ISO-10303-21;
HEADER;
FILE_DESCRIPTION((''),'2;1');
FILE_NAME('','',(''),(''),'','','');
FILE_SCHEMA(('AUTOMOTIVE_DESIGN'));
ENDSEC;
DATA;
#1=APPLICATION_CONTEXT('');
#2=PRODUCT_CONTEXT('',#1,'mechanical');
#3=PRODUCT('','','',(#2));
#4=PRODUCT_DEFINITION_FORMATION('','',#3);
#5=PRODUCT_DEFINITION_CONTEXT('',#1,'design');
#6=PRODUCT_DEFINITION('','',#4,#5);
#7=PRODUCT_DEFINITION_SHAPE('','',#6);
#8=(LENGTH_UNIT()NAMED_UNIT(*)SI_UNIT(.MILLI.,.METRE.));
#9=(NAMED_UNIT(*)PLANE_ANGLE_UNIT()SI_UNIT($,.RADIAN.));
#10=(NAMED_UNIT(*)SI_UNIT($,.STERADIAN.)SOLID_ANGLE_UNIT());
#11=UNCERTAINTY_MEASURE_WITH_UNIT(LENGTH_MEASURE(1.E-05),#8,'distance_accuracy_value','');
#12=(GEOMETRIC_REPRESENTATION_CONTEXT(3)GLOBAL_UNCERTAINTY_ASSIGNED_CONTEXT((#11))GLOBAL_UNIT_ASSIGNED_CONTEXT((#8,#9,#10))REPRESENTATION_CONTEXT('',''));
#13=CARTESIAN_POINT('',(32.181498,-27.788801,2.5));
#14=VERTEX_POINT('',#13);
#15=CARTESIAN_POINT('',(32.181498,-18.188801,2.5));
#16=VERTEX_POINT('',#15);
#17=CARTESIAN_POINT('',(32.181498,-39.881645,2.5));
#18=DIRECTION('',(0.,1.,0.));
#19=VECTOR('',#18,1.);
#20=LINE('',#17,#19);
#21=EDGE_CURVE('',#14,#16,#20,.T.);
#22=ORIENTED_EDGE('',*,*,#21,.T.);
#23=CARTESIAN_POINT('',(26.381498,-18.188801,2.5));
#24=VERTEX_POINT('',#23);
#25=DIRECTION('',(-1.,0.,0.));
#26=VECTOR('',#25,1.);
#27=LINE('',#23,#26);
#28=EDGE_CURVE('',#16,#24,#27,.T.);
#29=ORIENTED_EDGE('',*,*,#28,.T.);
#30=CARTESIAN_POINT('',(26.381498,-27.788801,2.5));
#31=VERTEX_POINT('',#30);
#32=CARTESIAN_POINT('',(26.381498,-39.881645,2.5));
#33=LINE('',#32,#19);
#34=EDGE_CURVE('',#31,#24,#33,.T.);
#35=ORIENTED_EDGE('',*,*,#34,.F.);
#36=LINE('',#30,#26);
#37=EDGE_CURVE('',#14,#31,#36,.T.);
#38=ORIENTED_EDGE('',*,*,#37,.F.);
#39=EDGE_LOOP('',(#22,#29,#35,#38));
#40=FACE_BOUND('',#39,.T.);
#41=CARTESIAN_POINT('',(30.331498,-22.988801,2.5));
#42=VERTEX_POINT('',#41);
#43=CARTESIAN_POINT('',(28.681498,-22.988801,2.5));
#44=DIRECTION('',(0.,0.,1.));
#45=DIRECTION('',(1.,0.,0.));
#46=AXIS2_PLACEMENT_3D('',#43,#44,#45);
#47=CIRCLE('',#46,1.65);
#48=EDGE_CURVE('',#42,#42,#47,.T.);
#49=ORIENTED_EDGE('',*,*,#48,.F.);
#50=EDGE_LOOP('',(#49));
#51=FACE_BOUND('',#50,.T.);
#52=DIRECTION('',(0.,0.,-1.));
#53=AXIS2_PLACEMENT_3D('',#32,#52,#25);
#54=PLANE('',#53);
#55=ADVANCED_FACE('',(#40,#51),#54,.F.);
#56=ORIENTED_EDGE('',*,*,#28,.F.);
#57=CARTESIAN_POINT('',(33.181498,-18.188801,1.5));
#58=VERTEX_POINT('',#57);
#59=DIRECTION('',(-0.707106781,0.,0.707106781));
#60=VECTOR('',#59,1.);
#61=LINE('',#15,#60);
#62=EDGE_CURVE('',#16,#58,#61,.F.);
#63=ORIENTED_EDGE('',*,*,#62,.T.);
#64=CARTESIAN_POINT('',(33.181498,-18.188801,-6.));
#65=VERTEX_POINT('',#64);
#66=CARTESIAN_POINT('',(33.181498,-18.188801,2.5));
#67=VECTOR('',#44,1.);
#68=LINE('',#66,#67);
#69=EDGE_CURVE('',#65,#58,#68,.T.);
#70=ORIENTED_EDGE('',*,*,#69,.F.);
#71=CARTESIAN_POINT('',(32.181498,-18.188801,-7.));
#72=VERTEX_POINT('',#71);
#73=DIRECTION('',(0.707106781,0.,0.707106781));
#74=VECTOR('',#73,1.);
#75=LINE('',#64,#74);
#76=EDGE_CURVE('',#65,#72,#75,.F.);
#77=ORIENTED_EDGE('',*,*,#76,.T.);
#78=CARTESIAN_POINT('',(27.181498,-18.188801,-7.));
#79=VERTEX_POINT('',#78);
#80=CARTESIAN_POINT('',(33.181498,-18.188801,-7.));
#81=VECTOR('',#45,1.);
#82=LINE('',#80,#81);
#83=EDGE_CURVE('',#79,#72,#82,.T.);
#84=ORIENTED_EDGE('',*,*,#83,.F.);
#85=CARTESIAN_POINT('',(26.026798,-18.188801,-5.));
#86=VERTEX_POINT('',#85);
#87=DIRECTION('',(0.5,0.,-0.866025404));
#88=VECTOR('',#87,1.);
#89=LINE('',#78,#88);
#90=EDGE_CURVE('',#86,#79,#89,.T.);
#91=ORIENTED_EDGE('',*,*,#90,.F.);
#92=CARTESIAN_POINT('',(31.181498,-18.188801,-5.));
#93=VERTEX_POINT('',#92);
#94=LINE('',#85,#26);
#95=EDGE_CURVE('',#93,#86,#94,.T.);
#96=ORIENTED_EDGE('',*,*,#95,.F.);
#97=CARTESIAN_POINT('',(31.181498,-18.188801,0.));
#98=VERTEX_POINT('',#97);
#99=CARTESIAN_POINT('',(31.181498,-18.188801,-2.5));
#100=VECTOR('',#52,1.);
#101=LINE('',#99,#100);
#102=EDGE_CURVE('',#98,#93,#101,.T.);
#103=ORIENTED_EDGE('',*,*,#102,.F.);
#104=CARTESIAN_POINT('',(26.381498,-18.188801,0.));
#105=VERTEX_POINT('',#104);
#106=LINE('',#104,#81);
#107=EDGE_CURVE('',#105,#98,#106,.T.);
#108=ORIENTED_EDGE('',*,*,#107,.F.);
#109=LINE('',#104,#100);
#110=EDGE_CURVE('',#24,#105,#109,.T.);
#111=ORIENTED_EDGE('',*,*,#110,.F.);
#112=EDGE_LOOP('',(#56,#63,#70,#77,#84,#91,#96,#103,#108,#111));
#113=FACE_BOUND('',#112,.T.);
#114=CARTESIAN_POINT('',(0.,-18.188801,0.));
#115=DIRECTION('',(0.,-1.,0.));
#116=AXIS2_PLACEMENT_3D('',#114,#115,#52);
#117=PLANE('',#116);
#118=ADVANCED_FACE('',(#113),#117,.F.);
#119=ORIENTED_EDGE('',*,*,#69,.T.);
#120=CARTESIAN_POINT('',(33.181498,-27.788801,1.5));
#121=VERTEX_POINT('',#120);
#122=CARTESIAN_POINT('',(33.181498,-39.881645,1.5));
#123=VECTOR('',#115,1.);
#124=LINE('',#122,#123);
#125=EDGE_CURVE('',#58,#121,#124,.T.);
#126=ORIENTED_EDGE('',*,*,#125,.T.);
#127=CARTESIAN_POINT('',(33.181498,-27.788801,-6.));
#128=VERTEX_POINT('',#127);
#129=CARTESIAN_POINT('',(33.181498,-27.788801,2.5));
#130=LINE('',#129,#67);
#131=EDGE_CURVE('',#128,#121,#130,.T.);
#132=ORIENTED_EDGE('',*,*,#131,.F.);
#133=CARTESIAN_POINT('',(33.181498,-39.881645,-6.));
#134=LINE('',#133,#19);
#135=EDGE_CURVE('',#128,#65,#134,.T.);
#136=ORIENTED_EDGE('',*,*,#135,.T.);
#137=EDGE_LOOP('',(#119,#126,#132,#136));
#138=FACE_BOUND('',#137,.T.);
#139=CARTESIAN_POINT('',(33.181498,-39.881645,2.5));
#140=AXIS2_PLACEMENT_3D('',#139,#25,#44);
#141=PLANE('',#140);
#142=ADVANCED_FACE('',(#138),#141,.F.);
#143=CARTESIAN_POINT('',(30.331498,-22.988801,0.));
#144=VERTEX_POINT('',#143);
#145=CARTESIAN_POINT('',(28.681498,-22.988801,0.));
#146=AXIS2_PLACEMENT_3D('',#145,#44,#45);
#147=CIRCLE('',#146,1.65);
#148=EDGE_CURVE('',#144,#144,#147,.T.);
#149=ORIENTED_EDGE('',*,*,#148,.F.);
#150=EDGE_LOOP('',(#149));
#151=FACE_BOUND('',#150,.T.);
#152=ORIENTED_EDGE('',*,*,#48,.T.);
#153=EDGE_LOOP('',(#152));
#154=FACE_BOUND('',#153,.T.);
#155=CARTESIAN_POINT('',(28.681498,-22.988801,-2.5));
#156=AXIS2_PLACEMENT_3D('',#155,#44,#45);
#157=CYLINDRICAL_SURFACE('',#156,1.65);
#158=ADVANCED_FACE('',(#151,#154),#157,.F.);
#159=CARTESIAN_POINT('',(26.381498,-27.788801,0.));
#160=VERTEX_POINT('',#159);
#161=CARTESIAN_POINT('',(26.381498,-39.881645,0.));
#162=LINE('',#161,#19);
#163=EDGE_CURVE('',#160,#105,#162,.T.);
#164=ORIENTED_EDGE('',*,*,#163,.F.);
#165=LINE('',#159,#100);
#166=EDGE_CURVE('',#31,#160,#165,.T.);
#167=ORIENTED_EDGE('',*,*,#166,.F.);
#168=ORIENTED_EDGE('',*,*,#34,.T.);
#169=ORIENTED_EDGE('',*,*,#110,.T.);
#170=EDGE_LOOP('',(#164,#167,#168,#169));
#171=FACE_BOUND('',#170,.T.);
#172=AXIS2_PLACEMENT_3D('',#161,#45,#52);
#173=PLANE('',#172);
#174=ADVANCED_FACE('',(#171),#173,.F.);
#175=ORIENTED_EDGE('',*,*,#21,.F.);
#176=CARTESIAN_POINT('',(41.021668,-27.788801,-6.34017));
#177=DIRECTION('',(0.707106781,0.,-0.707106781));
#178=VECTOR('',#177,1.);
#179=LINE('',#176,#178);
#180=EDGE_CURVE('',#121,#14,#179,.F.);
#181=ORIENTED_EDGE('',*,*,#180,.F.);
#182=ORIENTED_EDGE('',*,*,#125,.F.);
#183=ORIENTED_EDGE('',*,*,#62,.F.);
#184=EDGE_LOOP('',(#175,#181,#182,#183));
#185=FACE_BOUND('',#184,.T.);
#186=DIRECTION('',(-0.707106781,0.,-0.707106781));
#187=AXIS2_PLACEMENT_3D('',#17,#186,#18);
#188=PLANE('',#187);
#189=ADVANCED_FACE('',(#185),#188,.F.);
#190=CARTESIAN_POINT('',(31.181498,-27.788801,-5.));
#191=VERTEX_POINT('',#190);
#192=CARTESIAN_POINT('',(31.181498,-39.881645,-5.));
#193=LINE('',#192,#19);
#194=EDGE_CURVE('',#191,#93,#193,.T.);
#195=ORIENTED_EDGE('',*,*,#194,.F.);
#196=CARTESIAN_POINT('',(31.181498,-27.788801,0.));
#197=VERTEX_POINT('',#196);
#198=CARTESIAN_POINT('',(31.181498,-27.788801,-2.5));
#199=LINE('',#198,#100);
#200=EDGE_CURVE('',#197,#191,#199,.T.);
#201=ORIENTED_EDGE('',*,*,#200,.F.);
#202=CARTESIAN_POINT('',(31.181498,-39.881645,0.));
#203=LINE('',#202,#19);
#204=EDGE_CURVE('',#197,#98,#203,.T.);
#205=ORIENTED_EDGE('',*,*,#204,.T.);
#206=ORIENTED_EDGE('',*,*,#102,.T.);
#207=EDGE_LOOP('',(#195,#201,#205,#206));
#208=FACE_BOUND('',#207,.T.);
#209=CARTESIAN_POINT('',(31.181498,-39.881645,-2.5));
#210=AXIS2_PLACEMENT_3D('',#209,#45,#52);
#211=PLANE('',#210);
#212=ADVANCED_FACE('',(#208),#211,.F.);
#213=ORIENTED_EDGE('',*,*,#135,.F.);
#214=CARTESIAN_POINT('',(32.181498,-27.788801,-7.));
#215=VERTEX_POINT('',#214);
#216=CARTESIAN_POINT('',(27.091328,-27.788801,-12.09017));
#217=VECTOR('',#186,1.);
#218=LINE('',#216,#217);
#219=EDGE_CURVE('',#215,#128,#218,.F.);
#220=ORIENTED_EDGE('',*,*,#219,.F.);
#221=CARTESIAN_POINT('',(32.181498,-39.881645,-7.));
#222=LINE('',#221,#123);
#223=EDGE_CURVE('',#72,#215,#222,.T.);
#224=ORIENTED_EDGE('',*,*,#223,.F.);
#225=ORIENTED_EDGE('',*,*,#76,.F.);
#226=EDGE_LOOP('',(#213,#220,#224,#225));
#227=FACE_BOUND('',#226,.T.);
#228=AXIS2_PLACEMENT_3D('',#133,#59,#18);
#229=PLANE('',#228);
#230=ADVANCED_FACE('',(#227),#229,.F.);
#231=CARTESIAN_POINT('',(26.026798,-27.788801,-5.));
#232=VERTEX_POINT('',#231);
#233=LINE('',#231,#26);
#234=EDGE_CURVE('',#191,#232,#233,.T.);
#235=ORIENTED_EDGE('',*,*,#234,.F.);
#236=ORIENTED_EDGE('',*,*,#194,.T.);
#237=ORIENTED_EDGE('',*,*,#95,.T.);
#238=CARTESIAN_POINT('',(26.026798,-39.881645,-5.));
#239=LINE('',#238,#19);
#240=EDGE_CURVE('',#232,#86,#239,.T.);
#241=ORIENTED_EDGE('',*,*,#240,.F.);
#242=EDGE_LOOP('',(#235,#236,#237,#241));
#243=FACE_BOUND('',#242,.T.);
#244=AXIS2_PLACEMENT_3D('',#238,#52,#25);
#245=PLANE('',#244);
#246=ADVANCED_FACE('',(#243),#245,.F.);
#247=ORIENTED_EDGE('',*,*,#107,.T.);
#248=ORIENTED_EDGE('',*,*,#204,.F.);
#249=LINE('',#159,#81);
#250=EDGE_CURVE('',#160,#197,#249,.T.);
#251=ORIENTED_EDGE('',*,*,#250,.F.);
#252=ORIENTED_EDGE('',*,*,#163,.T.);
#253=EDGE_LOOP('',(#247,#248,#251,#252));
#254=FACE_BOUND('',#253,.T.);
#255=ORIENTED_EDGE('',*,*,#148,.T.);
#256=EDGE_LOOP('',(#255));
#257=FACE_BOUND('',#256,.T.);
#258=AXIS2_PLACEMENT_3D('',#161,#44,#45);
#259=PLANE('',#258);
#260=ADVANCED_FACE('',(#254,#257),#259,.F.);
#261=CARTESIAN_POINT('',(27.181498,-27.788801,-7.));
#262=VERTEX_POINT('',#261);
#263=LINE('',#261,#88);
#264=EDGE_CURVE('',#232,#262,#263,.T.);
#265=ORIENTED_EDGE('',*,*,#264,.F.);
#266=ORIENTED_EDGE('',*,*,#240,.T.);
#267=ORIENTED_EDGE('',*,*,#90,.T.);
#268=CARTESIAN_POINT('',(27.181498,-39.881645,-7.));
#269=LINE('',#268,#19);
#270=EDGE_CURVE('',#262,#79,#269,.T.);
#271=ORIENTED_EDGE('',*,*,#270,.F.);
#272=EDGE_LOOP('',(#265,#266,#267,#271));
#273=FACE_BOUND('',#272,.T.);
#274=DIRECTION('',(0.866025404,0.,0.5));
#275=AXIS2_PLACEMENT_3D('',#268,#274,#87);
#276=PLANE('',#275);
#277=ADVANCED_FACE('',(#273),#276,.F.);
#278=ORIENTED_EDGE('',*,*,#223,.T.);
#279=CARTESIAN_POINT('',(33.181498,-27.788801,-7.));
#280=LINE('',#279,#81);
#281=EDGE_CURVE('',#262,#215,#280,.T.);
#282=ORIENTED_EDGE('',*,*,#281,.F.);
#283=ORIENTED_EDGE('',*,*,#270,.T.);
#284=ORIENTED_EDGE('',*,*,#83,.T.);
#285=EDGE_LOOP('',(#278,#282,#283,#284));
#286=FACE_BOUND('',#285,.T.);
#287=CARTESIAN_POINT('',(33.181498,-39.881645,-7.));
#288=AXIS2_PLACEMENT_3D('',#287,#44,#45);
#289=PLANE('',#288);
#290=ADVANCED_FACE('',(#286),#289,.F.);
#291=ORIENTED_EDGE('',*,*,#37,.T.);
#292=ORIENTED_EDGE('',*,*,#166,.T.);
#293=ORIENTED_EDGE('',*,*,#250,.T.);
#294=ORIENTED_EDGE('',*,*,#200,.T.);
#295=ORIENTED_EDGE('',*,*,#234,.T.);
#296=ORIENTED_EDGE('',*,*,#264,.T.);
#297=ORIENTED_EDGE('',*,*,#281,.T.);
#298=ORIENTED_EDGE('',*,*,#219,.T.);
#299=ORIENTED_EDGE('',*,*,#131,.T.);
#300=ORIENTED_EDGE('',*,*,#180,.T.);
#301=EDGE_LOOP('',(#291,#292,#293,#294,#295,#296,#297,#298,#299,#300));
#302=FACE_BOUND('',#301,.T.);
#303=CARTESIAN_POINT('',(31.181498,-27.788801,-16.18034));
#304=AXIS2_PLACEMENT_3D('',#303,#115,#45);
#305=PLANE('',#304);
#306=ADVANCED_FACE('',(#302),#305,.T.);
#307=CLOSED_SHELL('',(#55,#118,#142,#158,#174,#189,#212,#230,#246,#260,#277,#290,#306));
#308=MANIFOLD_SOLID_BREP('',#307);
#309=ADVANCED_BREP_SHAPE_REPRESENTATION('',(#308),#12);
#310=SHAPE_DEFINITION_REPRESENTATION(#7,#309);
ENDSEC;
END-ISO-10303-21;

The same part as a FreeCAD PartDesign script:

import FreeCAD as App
import Part
import Sketcher
Q = App.Units.Quantity


def edges_at(feature, points):
    """Names of the edges that pass closest to the given points."""
    edges = feature.Shape.Edges
    near = lambda p: min(range(len(edges)), key=lambda i: edges[i].distToShape(Part.Vertex(*p))[0])
    return sorted({f"Edge{near(p) + 1}" for p in points})

doc = App.newDocument("Part")
params = doc.addObject("Spreadsheet::Sheet", "Params")
for row, (alias, value) in enumerate([
    ("sketch1_width", "6 mm"),
    ("sketch1_height", "5 mm"),
    ("sketch1_width2", "6.8 mm"),
    ("sketch1_width3", "4.8 mm"),
    ("sketch1_height2", "9.5 mm"),
    ("pad1_length", "9.6 mm"),
    ("sketch2_diameter", "3.3 mm"),
    ("pocket1_length", "5 mm"),
    ("chamfer_size", "1 mm"),
], start=1):
    params.set(f"A{row}", alias)
    params.set(f"B{row}", "=" + value)
    params.setAlias(f"B{row}", alias)

body = doc.addObject("PartDesign::Body", "Body")

sketch1 = doc.addObject("Sketcher::SketchObject", "Sketch")
body.addObject(sketch1)
sketch1.AttachmentSupport = (doc.XZ_Plane, [""])
sketch1.MapMode = "FlatFace"
sketch1.AttachmentOffset = App.Placement(App.Vector(0, 0, 18.188801), App.Rotation())
sketch1.addGeometry([
    Part.LineSegment(App.Vector(31.181498, -5, 0), App.Vector(26.026798, -5, 0)),
    Part.LineSegment(App.Vector(26.026798, -5, 0), App.Vector(27.181498, -7, 0)),
    Part.LineSegment(App.Vector(27.181498, -7, 0), App.Vector(33.181498, -7, 0)),
    Part.LineSegment(App.Vector(33.181498, -7, 0), App.Vector(33.181498, 2.5, 0)),
    Part.LineSegment(App.Vector(33.181498, 2.5, 0), App.Vector(26.381498, 2.5, 0)),
    Part.LineSegment(App.Vector(26.381498, 2.5, 0), App.Vector(26.381498, 0, 0)),
    Part.LineSegment(App.Vector(26.381498, 0, 0), App.Vector(31.181498, 0, 0)),
    Part.LineSegment(App.Vector(31.181498, 0, 0), App.Vector(31.181498, -5, 0)),
], False)
sketch1.addConstraint([
    Sketcher.Constraint("Coincident", 0, 2, 1, 1),
    Sketcher.Constraint("Coincident", 1, 2, 2, 1),
    Sketcher.Constraint("Coincident", 2, 2, 3, 1),
    Sketcher.Constraint("Coincident", 3, 2, 4, 1),
    Sketcher.Constraint("Coincident", 4, 2, 5, 1),
    Sketcher.Constraint("Coincident", 5, 2, 6, 1),
    Sketcher.Constraint("Coincident", 6, 2, 7, 1),
    Sketcher.Constraint("Coincident", 7, 2, 0, 1),
    Sketcher.Constraint("Horizontal", 0),
    Sketcher.Constraint("Horizontal", 2),
    Sketcher.Constraint("Vertical", 3),
    Sketcher.Constraint("Horizontal", 4),
    Sketcher.Constraint("Vertical", 5),
    Sketcher.Constraint("Horizontal", 6),
    Sketcher.Constraint("Vertical", 7),
    Sketcher.Constraint("PointOnObject", 5, 2, -1),
    Sketcher.Constraint("DistanceX", 2, 1, 2, 2, 6.0),
    Sketcher.Constraint("DistanceY", 7, 2, 7, 1, 5.0),
    Sketcher.Constraint("Angle", 1, Q("-60 deg")),
    Sketcher.Constraint("DistanceX", 4, 2, 4, 1, 6.8),
    Sketcher.Constraint("DistanceX", 6, 1, 6, 2, 4.8),
    Sketcher.Constraint("DistanceY", 3, 1, 3, 2, 9.5),
    Sketcher.Constraint("DistanceY", 5, 2, 5, 1, 2.5),
    Sketcher.Constraint("DistanceX", -1, 1, 1, 2, 27.181498),
])
sketch1.setExpression("Constraints[16]", "Params.sketch1_width")
sketch1.setExpression("Constraints[17]", "Params.sketch1_height")
sketch1.setExpression("Constraints[19]", "Params.sketch1_width2")
sketch1.setExpression("Constraints[20]", "Params.sketch1_width3")
sketch1.setExpression("Constraints[21]", "Params.sketch1_height2")
pad1 = doc.addObject("PartDesign::Pad", "Pad")
body.addObject(pad1)
pad1.Profile = sketch1
pad1.setExpression("Length", "Params.pad1_length")

sketch2 = doc.addObject("Sketcher::SketchObject", "Sketch001")
body.addObject(sketch2)
sketch2.AttachmentSupport = (doc.XY_Plane, [""])
sketch2.MapMode = "FlatFace"
sketch2.AttachmentOffset = App.Placement(App.Vector(0, 0, 2.5), App.Rotation())
sketch2.addGeometry(Part.Circle(App.Vector(28.681498, -22.988801, 0), App.Vector(0, 0, 1), 1.65), False)
sketch2.addConstraint([
    Sketcher.Constraint("Diameter", 0, 3.3),
    Sketcher.Constraint("DistanceX", -1, 1, 0, 3, 28.681498),
    Sketcher.Constraint("DistanceY", 0, 3, -1, 1, 22.988801),
])
sketch2.setExpression("Constraints[0]", "Params.sketch2_diameter")
pocket1 = doc.addObject("PartDesign::Pocket", "Pocket")
body.addObject(pocket1)
pocket1.Profile = sketch2
pocket1.setExpression("Length", "Params.pocket1_length")
doc.recompute()

chamfer = doc.addObject("PartDesign::Chamfer", "Chamfer")
body.addObject(chamfer)
chamfer.Base = (pocket1, edges_at(pocket1, [(33.181, -22.989, -7), (33.181, -22.989, 2.5)]))
chamfer.setExpression("Size", "Params.chamfer_size")

doc.recompute()
